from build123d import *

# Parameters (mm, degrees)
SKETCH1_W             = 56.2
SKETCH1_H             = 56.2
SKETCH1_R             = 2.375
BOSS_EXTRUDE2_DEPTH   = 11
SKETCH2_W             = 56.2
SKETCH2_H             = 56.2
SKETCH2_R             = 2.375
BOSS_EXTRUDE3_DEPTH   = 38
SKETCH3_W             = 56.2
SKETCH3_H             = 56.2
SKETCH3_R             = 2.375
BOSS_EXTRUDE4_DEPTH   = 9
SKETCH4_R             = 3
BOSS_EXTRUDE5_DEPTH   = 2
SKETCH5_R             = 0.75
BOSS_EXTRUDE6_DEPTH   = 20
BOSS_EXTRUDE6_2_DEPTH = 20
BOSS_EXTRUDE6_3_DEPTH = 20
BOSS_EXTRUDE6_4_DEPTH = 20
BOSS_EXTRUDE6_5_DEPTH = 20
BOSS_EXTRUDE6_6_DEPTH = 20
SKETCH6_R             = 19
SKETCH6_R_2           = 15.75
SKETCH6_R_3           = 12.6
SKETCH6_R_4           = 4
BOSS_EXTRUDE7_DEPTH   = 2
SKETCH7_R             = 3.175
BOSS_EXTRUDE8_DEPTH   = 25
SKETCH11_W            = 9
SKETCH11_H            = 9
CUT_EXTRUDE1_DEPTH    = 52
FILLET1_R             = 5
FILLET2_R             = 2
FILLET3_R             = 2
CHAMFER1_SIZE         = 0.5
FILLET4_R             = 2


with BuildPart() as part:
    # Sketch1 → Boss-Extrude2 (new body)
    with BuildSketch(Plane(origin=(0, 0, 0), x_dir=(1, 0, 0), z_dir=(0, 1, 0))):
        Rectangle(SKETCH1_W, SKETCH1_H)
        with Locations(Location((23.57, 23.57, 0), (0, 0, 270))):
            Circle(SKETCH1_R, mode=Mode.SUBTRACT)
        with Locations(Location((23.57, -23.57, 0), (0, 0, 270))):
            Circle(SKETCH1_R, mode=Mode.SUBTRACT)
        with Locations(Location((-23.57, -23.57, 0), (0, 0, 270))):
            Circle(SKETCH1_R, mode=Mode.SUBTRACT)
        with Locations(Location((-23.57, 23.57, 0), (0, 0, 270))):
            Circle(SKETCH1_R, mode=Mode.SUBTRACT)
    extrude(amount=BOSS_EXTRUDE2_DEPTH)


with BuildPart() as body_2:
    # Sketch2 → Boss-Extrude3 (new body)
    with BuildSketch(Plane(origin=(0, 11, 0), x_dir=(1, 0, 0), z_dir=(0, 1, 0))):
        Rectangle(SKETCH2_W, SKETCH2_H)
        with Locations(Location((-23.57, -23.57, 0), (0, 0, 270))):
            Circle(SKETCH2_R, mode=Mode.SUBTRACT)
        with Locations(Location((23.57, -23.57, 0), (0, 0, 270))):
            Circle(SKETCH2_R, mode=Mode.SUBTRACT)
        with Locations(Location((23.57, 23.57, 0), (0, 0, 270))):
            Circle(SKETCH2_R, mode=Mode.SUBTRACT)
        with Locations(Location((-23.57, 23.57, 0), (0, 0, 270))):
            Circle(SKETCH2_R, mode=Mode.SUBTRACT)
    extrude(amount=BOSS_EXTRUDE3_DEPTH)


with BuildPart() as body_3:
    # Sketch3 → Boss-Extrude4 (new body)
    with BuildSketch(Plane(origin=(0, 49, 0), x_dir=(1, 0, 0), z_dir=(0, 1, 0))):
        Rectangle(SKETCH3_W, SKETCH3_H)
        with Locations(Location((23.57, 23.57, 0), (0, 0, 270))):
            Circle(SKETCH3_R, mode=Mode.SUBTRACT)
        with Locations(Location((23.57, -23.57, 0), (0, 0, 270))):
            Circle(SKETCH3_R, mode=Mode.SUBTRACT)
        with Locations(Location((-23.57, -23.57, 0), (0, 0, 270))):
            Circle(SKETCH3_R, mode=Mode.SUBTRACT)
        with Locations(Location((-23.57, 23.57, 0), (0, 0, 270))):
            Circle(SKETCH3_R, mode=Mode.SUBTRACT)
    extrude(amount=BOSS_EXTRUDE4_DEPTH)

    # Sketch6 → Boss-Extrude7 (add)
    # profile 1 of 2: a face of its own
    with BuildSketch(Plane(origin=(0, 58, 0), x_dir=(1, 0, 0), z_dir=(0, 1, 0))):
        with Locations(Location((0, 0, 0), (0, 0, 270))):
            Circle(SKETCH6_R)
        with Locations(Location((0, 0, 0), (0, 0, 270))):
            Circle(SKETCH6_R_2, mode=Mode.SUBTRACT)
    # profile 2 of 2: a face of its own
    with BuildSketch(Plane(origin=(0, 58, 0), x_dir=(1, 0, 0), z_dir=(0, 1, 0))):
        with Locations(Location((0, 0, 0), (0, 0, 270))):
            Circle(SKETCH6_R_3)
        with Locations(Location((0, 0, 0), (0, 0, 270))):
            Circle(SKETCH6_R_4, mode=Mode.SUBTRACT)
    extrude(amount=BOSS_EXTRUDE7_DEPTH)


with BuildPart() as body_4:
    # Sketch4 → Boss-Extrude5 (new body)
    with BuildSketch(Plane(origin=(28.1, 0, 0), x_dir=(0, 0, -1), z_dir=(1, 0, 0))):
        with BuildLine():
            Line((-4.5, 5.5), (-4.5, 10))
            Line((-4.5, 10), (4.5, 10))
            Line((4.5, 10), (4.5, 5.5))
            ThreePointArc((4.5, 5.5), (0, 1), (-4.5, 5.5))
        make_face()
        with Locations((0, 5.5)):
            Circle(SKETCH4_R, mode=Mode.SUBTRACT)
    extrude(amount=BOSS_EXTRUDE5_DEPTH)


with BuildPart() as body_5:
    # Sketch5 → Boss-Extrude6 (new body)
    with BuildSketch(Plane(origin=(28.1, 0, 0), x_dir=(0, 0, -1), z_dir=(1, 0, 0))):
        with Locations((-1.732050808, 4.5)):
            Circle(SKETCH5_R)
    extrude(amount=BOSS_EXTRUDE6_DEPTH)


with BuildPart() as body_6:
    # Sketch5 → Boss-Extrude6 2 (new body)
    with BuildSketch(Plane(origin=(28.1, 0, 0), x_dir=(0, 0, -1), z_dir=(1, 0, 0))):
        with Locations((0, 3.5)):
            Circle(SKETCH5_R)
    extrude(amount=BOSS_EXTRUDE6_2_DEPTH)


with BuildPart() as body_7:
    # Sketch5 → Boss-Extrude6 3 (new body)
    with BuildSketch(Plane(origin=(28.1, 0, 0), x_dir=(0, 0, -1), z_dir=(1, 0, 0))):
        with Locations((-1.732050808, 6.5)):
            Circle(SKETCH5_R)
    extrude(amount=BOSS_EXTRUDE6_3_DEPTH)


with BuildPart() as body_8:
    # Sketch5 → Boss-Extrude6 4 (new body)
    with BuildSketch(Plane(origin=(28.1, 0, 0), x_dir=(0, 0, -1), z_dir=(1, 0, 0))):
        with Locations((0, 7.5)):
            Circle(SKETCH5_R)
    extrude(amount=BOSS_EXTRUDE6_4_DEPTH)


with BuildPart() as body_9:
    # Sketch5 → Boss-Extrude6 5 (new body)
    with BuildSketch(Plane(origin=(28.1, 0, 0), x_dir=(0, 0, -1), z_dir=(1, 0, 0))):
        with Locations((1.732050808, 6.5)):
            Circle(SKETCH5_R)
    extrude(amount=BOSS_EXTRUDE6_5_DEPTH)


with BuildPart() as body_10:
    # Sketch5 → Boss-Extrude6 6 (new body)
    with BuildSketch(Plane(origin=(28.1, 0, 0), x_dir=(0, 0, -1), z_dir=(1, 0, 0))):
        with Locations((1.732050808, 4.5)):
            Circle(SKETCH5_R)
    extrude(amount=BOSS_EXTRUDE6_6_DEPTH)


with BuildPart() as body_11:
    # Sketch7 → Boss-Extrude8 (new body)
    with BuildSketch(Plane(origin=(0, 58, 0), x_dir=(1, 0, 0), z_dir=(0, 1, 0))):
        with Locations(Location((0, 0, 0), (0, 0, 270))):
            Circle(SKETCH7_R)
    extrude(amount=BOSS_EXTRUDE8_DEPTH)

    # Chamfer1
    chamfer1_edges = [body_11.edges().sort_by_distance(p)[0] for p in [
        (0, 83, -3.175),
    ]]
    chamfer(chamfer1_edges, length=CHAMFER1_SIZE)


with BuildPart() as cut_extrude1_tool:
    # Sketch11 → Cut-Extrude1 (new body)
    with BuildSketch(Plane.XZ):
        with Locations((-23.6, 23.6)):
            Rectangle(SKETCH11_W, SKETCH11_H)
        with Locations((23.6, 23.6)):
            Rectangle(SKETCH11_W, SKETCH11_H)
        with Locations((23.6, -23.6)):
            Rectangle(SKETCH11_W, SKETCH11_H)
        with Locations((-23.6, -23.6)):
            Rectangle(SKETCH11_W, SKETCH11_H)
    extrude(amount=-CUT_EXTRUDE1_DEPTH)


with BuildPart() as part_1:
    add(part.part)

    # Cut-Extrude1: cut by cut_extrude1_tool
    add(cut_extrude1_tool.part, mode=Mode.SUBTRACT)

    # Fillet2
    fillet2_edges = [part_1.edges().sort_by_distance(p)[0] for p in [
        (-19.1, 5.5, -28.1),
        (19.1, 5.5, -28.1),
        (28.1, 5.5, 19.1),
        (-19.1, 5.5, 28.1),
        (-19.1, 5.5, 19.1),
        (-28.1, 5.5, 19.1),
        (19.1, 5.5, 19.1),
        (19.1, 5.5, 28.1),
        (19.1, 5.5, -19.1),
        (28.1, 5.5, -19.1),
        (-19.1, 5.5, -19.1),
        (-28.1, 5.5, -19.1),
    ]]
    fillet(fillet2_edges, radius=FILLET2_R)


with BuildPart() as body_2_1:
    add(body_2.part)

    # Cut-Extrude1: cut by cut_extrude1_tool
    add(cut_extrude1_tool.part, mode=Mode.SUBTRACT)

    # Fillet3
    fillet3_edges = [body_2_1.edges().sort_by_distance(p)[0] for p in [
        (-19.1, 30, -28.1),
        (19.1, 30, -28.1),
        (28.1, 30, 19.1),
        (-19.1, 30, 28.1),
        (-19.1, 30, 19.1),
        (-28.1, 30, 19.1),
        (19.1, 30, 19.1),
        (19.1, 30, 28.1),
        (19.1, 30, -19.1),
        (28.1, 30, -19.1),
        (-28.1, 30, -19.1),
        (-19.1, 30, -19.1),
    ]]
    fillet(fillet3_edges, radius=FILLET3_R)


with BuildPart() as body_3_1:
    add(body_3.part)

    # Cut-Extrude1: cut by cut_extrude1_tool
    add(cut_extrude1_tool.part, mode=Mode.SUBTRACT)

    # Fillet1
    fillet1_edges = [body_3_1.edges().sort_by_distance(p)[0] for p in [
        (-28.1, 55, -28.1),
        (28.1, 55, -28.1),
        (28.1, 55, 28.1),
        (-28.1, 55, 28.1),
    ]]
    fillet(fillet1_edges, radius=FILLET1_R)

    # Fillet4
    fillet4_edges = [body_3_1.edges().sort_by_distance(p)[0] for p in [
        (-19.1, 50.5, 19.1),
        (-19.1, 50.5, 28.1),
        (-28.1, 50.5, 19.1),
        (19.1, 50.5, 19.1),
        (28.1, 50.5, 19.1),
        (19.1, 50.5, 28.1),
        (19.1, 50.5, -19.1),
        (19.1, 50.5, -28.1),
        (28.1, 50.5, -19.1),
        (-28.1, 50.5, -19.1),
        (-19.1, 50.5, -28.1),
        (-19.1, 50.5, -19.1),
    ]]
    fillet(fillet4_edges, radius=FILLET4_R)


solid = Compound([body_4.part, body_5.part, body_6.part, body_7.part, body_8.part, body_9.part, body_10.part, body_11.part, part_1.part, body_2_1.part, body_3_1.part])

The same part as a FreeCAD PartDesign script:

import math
import FreeCAD as App
import Part
import Sketcher


def edges_at(feature, points):
    """Names of the edges that pass closest to the given points."""
    edges = feature.Shape.Edges
    near = lambda p: min(range(len(edges)), key=lambda i: edges[i].distToShape(Part.Vertex(*p))[0])
    return sorted({f"Edge{near(p) + 1}" for p in points})


def add_polygon(sketch, points):
    """Adds a closed chain of lines whose ends are joined by coincident constraints."""
    first, n = sketch.GeometryCount, len(points)
    for a, b in zip(points, points[1:] + points[:1]):
        sketch.addGeometry(Part.LineSegment(App.Vector(*a, 0), App.Vector(*b, 0)), False)
    for i in range(n):
        sketch.addConstraint(Sketcher.Constraint("Coincident", first + i, 2, first + (i + 1) % n, 1))

doc = App.newDocument("Part")
body = doc.addObject("PartDesign::Body", "Body")

# Sketch on XZ plane
sketch1 = body.newObject("Sketcher::SketchObject", "Sketch")
sketch1.AttachmentSupport = (doc.getObject("XZ_Plane"), [""])
sketch1.MapMode = "FlatFace"
add_polygon(sketch1, [(-28.1, -28.1), (-28.1, 28.1), (28.1, 28.1), (28.1, -28.1)])  # lines 0-3
sketch1.addGeometry(Part.Circle(App.Vector(-23.6, 23.6, 0), App.Vector(0, 0, 1), 2.4), False)  # 4
sketch1.addGeometry(Part.Circle(App.Vector(23.6, 23.6, 0), App.Vector(0, 0, 1), 2.4), False)  # 5
sketch1.addGeometry(Part.Circle(App.Vector(-23.6, -23.6, 0), App.Vector(0, 0, 1), 2.4), False)  # 6
sketch1.addGeometry(Part.Circle(App.Vector(23.6, -23.6, 0), App.Vector(0, 0, 1), 2.4), False)  # 7
sketch1.addConstraint([
    Sketcher.Constraint("Vertical", 0),
    Sketcher.Constraint("Horizontal", 1),
    Sketcher.Constraint("Vertical", 2),
    Sketcher.Constraint("Horizontal", 3),
    Sketcher.Constraint("Equal", 4, 5),
    Sketcher.Constraint("Equal", 5, 6),
    Sketcher.Constraint("Equal", 6, 7),
    Sketcher.Constraint("Symmetric", 5, 3, 6, 3, -1, 1),
    Sketcher.Constraint("Symmetric", 4, 3, 7, 3, -1, 1),
    Sketcher.Constraint("Symmetric", 0, 2, 2, 2, -1, 1),
    Sketcher.Constraint("Symmetric", 4, 3, 5, 3, -2),
    Sketcher.Constraint("Equal", 3, 0),
    Sketcher.Constraint("Diameter", 4, 4.75),
    Sketcher.Constraint("DistanceX", 1, 1, 1, 2, 56.2),
    Sketcher.Constraint("DistanceX", 4, 3, -1, 1, 23.57),
    Sketcher.Constraint("DistanceY", -1, 1, 4, 3, 23.57),
])
pad1 = body.newObject("PartDesign::Pad", "Pad")
pad1.Profile = sketch1
pad1.Length = 11
pad1.Reversed = True
body2 = doc.addObject("PartDesign::Body", "Body001")

# Sketch on XZ plane
sketch2 = body2.newObject("Sketcher::SketchObject", "Sketch001")
sketch2.AttachmentSupport = (doc.getObject("XZ_Plane001"), [""])
sketch2.MapMode = "FlatFace"
sketch2.AttachmentOffset = App.Placement(App.Vector(0, 0, -11), App.Rotation())
add_polygon(sketch2, [(-28.1, -28.1), (-28.1, 28.1), (28.1, 28.1), (28.1, -28.1)])  # lines 0-3
sketch2.addGeometry(Part.Circle(App.Vector(-23.6, 23.6, 0), App.Vector(0, 0, 1), 2.4), False)  # 4
sketch2.addGeometry(Part.Circle(App.Vector(23.6, 23.6, 0), App.Vector(0, 0, 1), 2.4), False)  # 5
sketch2.addGeometry(Part.Circle(App.Vector(-23.6, -23.6, 0), App.Vector(0, 0, 1), 2.4), False)  # 6
sketch2.addGeometry(Part.Circle(App.Vector(23.6, -23.6, 0), App.Vector(0, 0, 1), 2.4), False)  # 7
sketch2.addConstraint([
    Sketcher.Constraint("Vertical", 0),
    Sketcher.Constraint("Horizontal", 1),
    Sketcher.Constraint("Vertical", 2),
    Sketcher.Constraint("Horizontal", 3),
    Sketcher.Constraint("Equal", 4, 5),
    Sketcher.Constraint("Equal", 5, 6),
    Sketcher.Constraint("Equal", 6, 7),
    Sketcher.Constraint("Symmetric", 5, 3, 6, 3, -1, 1),
    Sketcher.Constraint("Symmetric", 4, 3, 7, 3, -1, 1),
    Sketcher.Constraint("Symmetric", 0, 2, 2, 2, -1, 1),
    Sketcher.Constraint("Symmetric", 4, 3, 5, 3, -2),
    Sketcher.Constraint("Equal", 3, 0),
    Sketcher.Constraint("Diameter", 4, 4.75),
    Sketcher.Constraint("DistanceX", 1, 1, 1, 2, 56.2),
    Sketcher.Constraint("DistanceX", 4, 3, -1, 1, 23.57),
    Sketcher.Constraint("DistanceY", -1, 1, 4, 3, 23.57),
])
pad2 = body2.newObject("PartDesign::Pad", "Pad001")
pad2.Profile = sketch2
pad2.Length = 38
pad2.Reversed = True
body3 = doc.addObject("PartDesign::Body", "Body002")

# Sketch on XZ plane
sketch3 = body3.newObject("Sketcher::SketchObject", "Sketch002")
sketch3.AttachmentSupport = (doc.getObject("XZ_Plane002"), [""])
sketch3.MapMode = "FlatFace"
sketch3.AttachmentOffset = App.Placement(App.Vector(0, 0, -49), App.Rotation())
add_polygon(sketch3, [(-28.1, -28.1), (-28.1, 28.1), (28.1, 28.1), (28.1, -28.1)])  # lines 0-3
sketch3.addGeometry(Part.Circle(App.Vector(-23.6, 23.6, 0), App.Vector(0, 0, 1), 2.4), False)  # 4
sketch3.addGeometry(Part.Circle(App.Vector(23.6, 23.6, 0), App.Vector(0, 0, 1), 2.4), False)  # 5
sketch3.addGeometry(Part.Circle(App.Vector(-23.6, -23.6, 0), App.Vector(0, 0, 1), 2.4), False)  # 6
sketch3.addGeometry(Part.Circle(App.Vector(23.6, -23.6, 0), App.Vector(0, 0, 1), 2.4), False)  # 7
sketch3.addConstraint([
    Sketcher.Constraint("Vertical", 0),
    Sketcher.Constraint("Horizontal", 1),
    Sketcher.Constraint("Vertical", 2),
    Sketcher.Constraint("Horizontal", 3),
    Sketcher.Constraint("Equal", 4, 5),
    Sketcher.Constraint("Equal", 5, 6),
    Sketcher.Constraint("Equal", 6, 7),
    Sketcher.Constraint("Symmetric", 5, 3, 6, 3, -1, 1),
    Sketcher.Constraint("Symmetric", 4, 3, 7, 3, -1, 1),
    Sketcher.Constraint("Symmetric", 0, 2, 2, 2, -1, 1),
    Sketcher.Constraint("Symmetric", 4, 3, 5, 3, -2),
    Sketcher.Constraint("Equal", 3, 0),
    Sketcher.Constraint("Diameter", 4, 4.75),
    Sketcher.Constraint("DistanceX", 1, 1, 1, 2, 56.2),
    Sketcher.Constraint("DistanceX", 4, 3, -1, 1, 23.57),
    Sketcher.Constraint("DistanceY", -1, 1, 4, 3, 23.57),
])
pad3 = body3.newObject("PartDesign::Pad", "Pad002")
pad3.Profile = sketch3
pad3.Length = 9
pad3.Reversed = True

# Sketch on XZ plane
sketch4 = body3.newObject("Sketcher::SketchObject", "Sketch003")
sketch4.AttachmentSupport = (doc.getObject("XZ_Plane002"), [""])
sketch4.MapMode = "FlatFace"
sketch4.AttachmentOffset = App.Placement(App.Vector(0, 0, -58), App.Rotation())
sketch4.addGeometry([
    Part.Circle(App.Vector(0, 0, 0), App.Vector(0, 0, 1), 19),
    Part.Circle(App.Vector(0, 0, 0), App.Vector(0, 0, 1), 15.8),
    Part.Circle(App.Vector(0, 0, 0), App.Vector(0, 0, 1), 12.6),
    Part.Circle(App.Vector(0, 0, 0), App.Vector(0, 0, 1), 4),
], False)
sketch4.addConstraint([
    Sketcher.Constraint("Coincident", 0, 3, -1, 1),
    Sketcher.Constraint("Coincident", 1, 3, -1, 1),
    Sketcher.Constraint("Coincident", 2, 3, -1, 1),
    Sketcher.Constraint("Coincident", 3, 3, -1, 1),
    Sketcher.Constraint("Diameter", 0, 38.0),
    Sketcher.Constraint("Diameter", 3, 8.0),
    Sketcher.Constraint("Diameter", 1, 31.5),
    Sketcher.Constraint("Diameter", 2, 25.2),
])
pad4 = body3.newObject("PartDesign::Pad", "Pad003")
pad4.Profile = sketch4
pad4.Length = 2
pad4.Reversed = True
body4 = doc.addObject("PartDesign::Body", "Body003")

# Sketch on YZ plane
sketch5 = body4.newObject("Sketcher::SketchObject", "Sketch004")
sketch5.AttachmentSupport = (doc.getObject("YZ_Plane003"), [""])
sketch5.MapMode = "FlatFace"
sketch5.AttachmentOffset = App.Placement(App.Vector(0, 0, 28.1), App.Rotation())
sketch5.addGeometry([
    Part.LineSegment(App.Vector(10, 4.5, 0), App.Vector(5.5, 4.5, 0)),  # 0
    Part.ArcOfCircle(Part.Circle(App.Vector(5.5, 0, 0), App.Vector(0, 0, 1), 4.5), math.radians(90), math.radians(270)),  # 1
    Part.LineSegment(App.Vector(5.5, -4.5, 0), App.Vector(10, -4.5, 0)),  # 2
    Part.LineSegment(App.Vector(10, -4.5, 0), App.Vector(10, 4.5, 0)),  # 3
    Part.Circle(App.Vector(5.5, 0, 0), App.Vector(0, 0, 1), 3),  # 4
], False)
sketch5.addConstraint([
    Sketcher.Constraint("Tangent", 0, 2, 1, 1),
    Sketcher.Constraint("Tangent", 1, 2, 2, 1),
    Sketcher.Constraint("Coincident", 2, 2, 3, 1),
    Sketcher.Constraint("Coincident", 3, 2, 0, 1),
    Sketcher.Constraint("Horizontal", 0),
    Sketcher.Constraint("Horizontal", 2),
    Sketcher.Constraint("Vertical", 3),
    Sketcher.Constraint("Coincident", 4, 3, 1, 3),
    Sketcher.Constraint("PointOnObject", 1, 3, -1),
    Sketcher.Constraint("Diameter", 4, 6.0),
    Sketcher.Constraint("Radius", 1, 4.5),
    Sketcher.Constraint("DistanceX", 0, 2, 0, 1, 4.5),
    Sketcher.Constraint("DistanceX", -1, 1, 2, 2, 10.0),
])
pad5 = body4.newObject("PartDesign::Pad", "Pad004")
pad5.Profile = sketch5
pad5.Length = 2
body5 = doc.addObject("PartDesign::Body", "Body004")

# Sketch on YZ plane
sketch6 = body5.newObject("Sketcher::SketchObject", "Sketch005")
sketch6.AttachmentSupport = (doc.getObject("YZ_Plane004"), [""])
sketch6.MapMode = "FlatFace"
sketch6.AttachmentOffset = App.Placement(App.Vector(0, 0, 28.1), App.Rotation())
sketch6.addGeometry(Part.Circle(App.Vector(4.5, 1.7, 0), App.Vector(0, 0, 1), 0.8), False)
sketch6.addConstraint([
    Sketcher.Constraint("Diameter", 0, 1.5),
    Sketcher.Constraint("DistanceX", -1, 1, 0, 3, 4.5),
    Sketcher.Constraint("DistanceY", -1, 1, 0, 3, 1.732051),
])
pad6 = body5.newObject("PartDesign::Pad", "Pad005")
pad6.Profile = sketch6
pad6.Length = 20
body6 = doc.addObject("PartDesign::Body", "Body005")

# Sketch on YZ plane
sketch7 = body6.newObject("Sketcher::SketchObject", "Sketch006")
sketch7.AttachmentSupport = (doc.getObject("YZ_Plane005"), [""])
sketch7.MapMode = "FlatFace"
sketch7.AttachmentOffset = App.Placement(App.Vector(0, 0, 28.1), App.Rotation())
sketch7.addGeometry(Part.Circle(App.Vector(3.5, 0, 0), App.Vector(0, 0, 1), 0.8), False)
sketch7.addConstraint([
    Sketcher.Constraint("PointOnObject", 0, 3, -1),
    Sketcher.Constraint("Diameter", 0, 1.5),
    Sketcher.Constraint("DistanceX", -1, 1, 0, 3, 3.5),
])
pad7 = body6.newObject("PartDesign::Pad", "Pad006")
pad7.Profile = sketch7
pad7.Length = 20
body7 = doc.addObject("PartDesign::Body", "Body006")

# Sketch on YZ plane
sketch8 = body7.newObject("Sketcher::SketchObject", "Sketch007")
sketch8.AttachmentSupport = (doc.getObject("YZ_Plane006"), [""])
sketch8.MapMode = "FlatFace"
sketch8.AttachmentOffset = App.Placement(App.Vector(0, 0, 28.1), App.Rotation())
sketch8.addGeometry(Part.Circle(App.Vector(6.5, 1.7, 0), App.Vector(0, 0, 1), 0.8), False)
sketch8.addConstraint([
    Sketcher.Constraint("Diameter", 0, 1.5),
    Sketcher.Constraint("DistanceX", -1, 1, 0, 3, 6.5),
    Sketcher.Constraint("DistanceY", -1, 1, 0, 3, 1.732051),
])
pad8 = body7.newObject("PartDesign::Pad", "Pad007")
pad8.Profile = sketch8
pad8.Length = 20
body8 = doc.addObject("PartDesign::Body", "Body007")

# Sketch on YZ plane
sketch9 = body8.newObject("Sketcher::SketchObject", "Sketch008")
sketch9.AttachmentSupport = (doc.getObject("YZ_Plane007"), [""])
sketch9.MapMode = "FlatFace"
sketch9.AttachmentOffset = App.Placement(App.Vector(0, 0, 28.1), App.Rotation())
sketch9.addGeometry(Part.Circle(App.Vector(7.5, 0, 0), App.Vector(0, 0, 1), 0.8), False)
sketch9.addConstraint([
    Sketcher.Constraint("PointOnObject", 0, 3, -1),
    Sketcher.Constraint("Diameter", 0, 1.5),
    Sketcher.Constraint("DistanceX", -1, 1, 0, 3, 7.5),
])
pad9 = body8.newObject("PartDesign::Pad", "Pad008")
pad9.Profile = sketch9
pad9.Length = 20
body9 = doc.addObject("PartDesign::Body", "Body008")

# Sketch on YZ plane
sketch10 = body9.newObject("Sketcher::SketchObject", "Sketch009")
sketch10.AttachmentSupport = (doc.getObject("YZ_Plane008"), [""])
sketch10.MapMode = "FlatFace"
sketch10.AttachmentOffset = App.Placement(App.Vector(0, 0, 28.1), App.Rotation())
sketch10.addGeometry(Part.Circle(App.Vector(6.5, -1.7, 0), App.Vector(0, 0, 1), 0.8), False)
sketch10.addConstraint([
    Sketcher.Constraint("Diameter", 0, 1.5),
    Sketcher.Constraint("DistanceX", -1, 1, 0, 3, 6.5),
    Sketcher.Constraint("DistanceY", 0, 3, -1, 1, 1.732051),
])
pad10 = body9.newObject("PartDesign::Pad", "Pad009")
pad10.Profile = sketch10
pad10.Length = 20
body10 = doc.addObject("PartDesign::Body", "Body009")

# Sketch on YZ plane
sketch11 = body10.newObject("Sketcher::SketchObject", "Sketch010")
sketch11.AttachmentSupport = (doc.getObject("YZ_Plane009"), [""])
sketch11.MapMode = "FlatFace"
sketch11.AttachmentOffset = App.Placement(App.Vector(0, 0, 28.1), App.Rotation())
sketch11.addGeometry(Part.Circle(App.Vector(4.5, -1.7, 0), App.Vector(0, 0, 1), 0.8), False)
sketch11.addConstraint([
    Sketcher.Constraint("Diameter", 0, 1.5),
    Sketcher.Constraint("DistanceX", -1, 1, 0, 3, 4.5),
    Sketcher.Constraint("DistanceY", 0, 3, -1, 1, 1.732051),
])
pad11 = body10.newObject("PartDesign::Pad", "Pad010")
pad11.Profile = sketch11
pad11.Length = 20
body11 = doc.addObject("PartDesign::Body", "Body010")

# Sketch on XZ plane
sketch12 = body11.newObject("Sketcher::SketchObject", "Sketch011")
sketch12.AttachmentSupport = (doc.getObject("XZ_Plane010"), [""])
sketch12.MapMode = "FlatFace"
sketch12.AttachmentOffset = App.Placement(App.Vector(0, 0, -58), App.Rotation())
sketch12.addGeometry(Part.Circle(App.Vector(0, 0, 0), App.Vector(0, 0, 1), 3.2), False)
sketch12.addConstraint([
    Sketcher.Constraint("Coincident", 0, 3, -1, 1),
    Sketcher.Constraint("Diameter", 0, 6.35),
])
pad12 = body11.newObject("PartDesign::Pad", "Pad011")
pad12.Profile = sketch12
pad12.Length = 25
pad12.Reversed = True
doc.recompute()

chamfer = body11.newObject("PartDesign::Chamfer", "Chamfer")
chamfer.Base = (pad12, edges_at(pad12, [(0, 83, -3.175)]))
chamfer.Size = 0.5
body12 = doc.addObject("PartDesign::Body", "Body011")
body12.AllowCompound = True

# Sketch on XZ plane
sketch13 = body12.newObject("Sketcher::SketchObject", "Sketch012")
sketch13.AttachmentSupport = (doc.getObject("XZ_Plane011"), [""])
sketch13.MapMode = "FlatFace"
add_polygon(sketch13, [(-28, 28), (-28, 19), (-19, 19), (-19, 28)])  # lines 0-3
add_polygon(sketch13, [(19, 28), (19, 19), (28, 19), (28, 28)])  # lines 4-7
add_polygon(sketch13, [(19, -19), (19, -28), (28, -28), (28, -19)])  # lines 8-11
add_polygon(sketch13, [(-28, -19), (-28, -28), (-19, -28), (-19, -19)])  # lines 12-15
sketch13.addConstraint([
    Sketcher.Constraint("Vertical", 0),
    Sketcher.Constraint("Horizontal", 1),
    Sketcher.Constraint("Vertical", 2),
    Sketcher.Constraint("Horizontal", 3),
    Sketcher.Constraint("Vertical", 4),
    Sketcher.Constraint("Horizontal", 5),
    Sketcher.Constraint("Vertical", 6),
    Sketcher.Constraint("Horizontal", 7),
    Sketcher.Constraint("Vertical", 8),
    Sketcher.Constraint("Horizontal", 9),
    Sketcher.Constraint("Vertical", 10),
    Sketcher.Constraint("Horizontal", 11),
    Sketcher.Constraint("Vertical", 12),
    Sketcher.Constraint("Horizontal", 13),
    Sketcher.Constraint("Vertical", 14),
    Sketcher.Constraint("Horizontal", 15),
    Sketcher.Constraint("Symmetric", 2, 2, 8, 2, -1, 1),
    Sketcher.Constraint("Symmetric", 0, 2, 10, 2, -1, 1),
    Sketcher.Constraint("Symmetric", 6, 2, 12, 2, -1, 1),
    Sketcher.Constraint("Symmetric", 4, 2, 14, 2, -1, 1),
    Sketcher.Constraint("Symmetric", 1, 2, 4, 2, -2),
    Sketcher.Constraint("Symmetric", 3, 2, 6, 2, -2),
    Sketcher.Constraint("Equal", 15, 0),
    Sketcher.Constraint("DistanceX", 1, 1, 1, 2, 9.0),
    Sketcher.Constraint("DistanceX", 0, 2, -1, 1, 28.1),
    Sketcher.Constraint("DistanceY", -1, 1, 0, 2, 19.1),
])
pad13 = body12.newObject("PartDesign::Pad", "Pad012")
pad13.Profile = sketch13
pad13.Length = 52
pad13.Reversed = True
doc.recompute()

body13 = doc.addObject("PartDesign::Body", "Body012")
body13.BaseFeature = body12
boolean = body.newObject("PartDesign::Boolean", "Boolean")
boolean.Type = "Cut"
boolean.addObjects([body13])
doc.recompute()

fillet = body.newObject("PartDesign::Fillet", "Fillet")
fillet.Base = (boolean, edges_at(boolean, [
    (-19.1, 5.5, -28.1),
    (19.1, 5.5, -28.1),
    (28.1, 5.5, 19.1),
    (-19.1, 5.5, 28.1),
    (-19.1, 5.5, 19.1),
    (-28.1, 5.5, 19.1),
    (19.1, 5.5, 19.1),
    (19.1, 5.5, 28.1),
    (19.1, 5.5, -19.1),
    (28.1, 5.5, -19.1),
    (-19.1, 5.5, -19.1),
    (-28.1, 5.5, -19.1),
]))
fillet.Radius = 2
doc.recompute()

body14 = doc.addObject("PartDesign::Body", "Body013")
body14.BaseFeature = body12
boolean2 = body2.newObject("PartDesign::Boolean", "Boolean001")
boolean2.Type = "Cut"
boolean2.addObjects([body14])
doc.recompute()

fillet2 = body2.newObject("PartDesign::Fillet", "Fillet001")
fillet2.Base = (boolean2, edges_at(boolean2, [
    (-19.1, 30, -28.1),
    (19.1, 30, -28.1),
    (28.1, 30, 19.1),
    (-19.1, 30, 28.1),
    (-19.1, 30, 19.1),
    (-28.1, 30, 19.1),
    (19.1, 30, 19.1),
    (19.1, 30, 28.1),
    (19.1, 30, -19.1),
    (28.1, 30, -19.1),
    (-28.1, 30, -19.1),
    (-19.1, 30, -19.1),
]))
fillet2.Radius = 2
doc.recompute()

boolean3 = body3.newObject("PartDesign::Boolean", "Boolean002")
boolean3.Type = "Cut"
boolean3.addObjects([body12])
doc.recompute()

fillet3 = body3.newObject("PartDesign::Fillet", "Fillet002")
fillet3.Base = (boolean3, edges_at(boolean3, [
    (-28.1, 55, -28.1),
    (28.1, 55, -28.1),
    (28.1, 55, 28.1),
    (-28.1, 55, 28.1),
]))
fillet3.Radius = 5
doc.recompute()

fillet4 = body3.newObject("PartDesign::Fillet", "Fillet003")
fillet4.Base = (fillet3, edges_at(fillet3, [
    (-19.1, 50.5, 19.1),
    (-19.1, 50.5, 28.1),
    (-28.1, 50.5, 19.1),
    (19.1, 50.5, 19.1),
    (28.1, 50.5, 19.1),
    (19.1, 50.5, 28.1),
    (19.1, 50.5, -19.1),
    (19.1, 50.5, -28.1),
    (28.1, 50.5, -19.1),
    (-28.1, 50.5, -19.1),
    (-19.1, 50.5, -28.1),
    (-19.1, 50.5, -19.1),
]))
fillet4.Radius = 2

doc.recompute()
